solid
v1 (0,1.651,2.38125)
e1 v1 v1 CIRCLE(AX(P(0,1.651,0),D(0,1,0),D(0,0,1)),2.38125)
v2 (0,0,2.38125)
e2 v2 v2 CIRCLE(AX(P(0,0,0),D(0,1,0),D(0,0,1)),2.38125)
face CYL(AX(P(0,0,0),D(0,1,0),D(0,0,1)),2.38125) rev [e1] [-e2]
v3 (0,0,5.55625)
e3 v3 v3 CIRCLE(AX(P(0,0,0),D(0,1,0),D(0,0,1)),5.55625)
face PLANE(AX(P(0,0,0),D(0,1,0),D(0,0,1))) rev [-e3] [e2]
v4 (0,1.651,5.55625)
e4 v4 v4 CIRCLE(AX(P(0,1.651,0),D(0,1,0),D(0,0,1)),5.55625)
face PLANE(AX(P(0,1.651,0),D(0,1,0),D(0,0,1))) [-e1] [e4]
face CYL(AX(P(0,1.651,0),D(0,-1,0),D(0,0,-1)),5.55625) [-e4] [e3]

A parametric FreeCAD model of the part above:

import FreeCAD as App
import Part
import Sketcher

V = App.Vector
Q = App.Units.Quantity

doc = App.newDocument("Part")
params = doc.addObject("Spreadsheet::Sheet", "Params")
for row, (alias, value) in enumerate([
    ("sketch1_diameter", "0.4375 in"),
    ("pad1_length", "0.065 in"),
    ("sketch2_diameter", "0.1875 in"),
], start=1):
    params.set(f"A{row}", alias)
    params.set(f"B{row}", "=" + value)
    params.setAlias(f"B{row}", alias)

body = doc.addObject("PartDesign::Body", "Body")

# Sketch on XZ plane
sketch1 = body.newObject("Sketcher::SketchObject", "Sketch")
sketch1.AttachmentSupport = (doc.getObject("XZ_Plane"), [""])
sketch1.MapMode = "FlatFace"
sketch1.addGeometry(Part.Circle(V(0, 0, 0), V(0, 0, 1), 6), False)
sketch1.addConstraint([
    Sketcher.Constraint("Coincident", 0, 3, -1, 1),
    Sketcher.Constraint("Diameter", 0, Q("0.4375 in")),
])
sketch1.setExpression("Constraints[1]", "Params.sketch1_diameter")
pad1 = body.newObject("PartDesign::Pad", "Pad")
pad1.Profile = sketch1
pad1.setExpression("Length", "Params.pad1_length")
pad1.Reversed = True

# Sketch on XZ plane
sketch2 = body.newObject("Sketcher::SketchObject", "Sketch001")
sketch2.AttachmentSupport = (doc.getObject("XZ_Plane"), [""])
sketch2.MapMode = "FlatFace"
sketch2.AttachmentOffset = App.Placement(V(0, 0, -0.065 * 25.4), App.Rotation())
sketch2.addGeometry(Part.Circle(V(0, 0, 0), V(0, 0, 1), 2.4), False)
sketch2.addConstraint([
    Sketcher.Constraint("Coincident", 0, 3, -1, 1),
    Sketcher.Constraint("Diameter", 0, Q("0.1875 in")),
])
sketch2.setExpression("Constraints[1]", "Params.sketch2_diameter")
pocket1 = body.newObject("PartDesign::Pocket", "Pocket")
pocket1.Profile = sketch2
pocket1.Type = "ThroughAll"
pocket1.Reversed = True

doc.recompute()
